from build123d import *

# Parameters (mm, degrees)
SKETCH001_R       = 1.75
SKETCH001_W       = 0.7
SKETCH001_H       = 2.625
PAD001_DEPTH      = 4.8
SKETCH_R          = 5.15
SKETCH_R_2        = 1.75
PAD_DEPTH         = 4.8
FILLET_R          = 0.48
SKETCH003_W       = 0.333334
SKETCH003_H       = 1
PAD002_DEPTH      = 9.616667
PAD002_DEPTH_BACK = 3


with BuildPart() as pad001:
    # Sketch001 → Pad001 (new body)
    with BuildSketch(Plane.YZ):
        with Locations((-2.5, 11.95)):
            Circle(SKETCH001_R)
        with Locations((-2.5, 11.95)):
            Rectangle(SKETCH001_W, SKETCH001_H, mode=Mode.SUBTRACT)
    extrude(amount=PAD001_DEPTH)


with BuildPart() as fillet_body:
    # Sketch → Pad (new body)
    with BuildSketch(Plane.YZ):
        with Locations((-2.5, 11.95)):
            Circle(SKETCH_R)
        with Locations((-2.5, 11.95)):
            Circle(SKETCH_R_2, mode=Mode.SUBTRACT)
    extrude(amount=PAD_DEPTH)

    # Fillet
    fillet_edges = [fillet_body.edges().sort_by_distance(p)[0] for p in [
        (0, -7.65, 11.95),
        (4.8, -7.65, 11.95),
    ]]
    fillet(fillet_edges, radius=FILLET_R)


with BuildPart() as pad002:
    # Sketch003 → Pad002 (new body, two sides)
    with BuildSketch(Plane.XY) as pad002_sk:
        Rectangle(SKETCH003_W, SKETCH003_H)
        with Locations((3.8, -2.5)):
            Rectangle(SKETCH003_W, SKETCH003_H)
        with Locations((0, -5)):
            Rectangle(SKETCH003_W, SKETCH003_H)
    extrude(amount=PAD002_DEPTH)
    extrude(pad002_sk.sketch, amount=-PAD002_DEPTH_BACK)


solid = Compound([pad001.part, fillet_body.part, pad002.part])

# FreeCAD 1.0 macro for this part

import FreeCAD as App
import Part
import Sketcher

V = App.Vector


def edges_at(feature, points):
    """Names of the edges that pass closest to the given points."""
    edges = feature.Shape.Edges
    near = lambda p: min(range(len(edges)), key=lambda i: edges[i].distToShape(Part.Vertex(*p))[0])
    return sorted({f"Edge{near(p) + 1}" for p in points})


def add_polygon(sketch, points):
    """Adds a closed chain of lines whose ends are joined by coincident constraints."""
    first, n = sketch.GeometryCount, len(points)
    for a, b in zip(points, points[1:] + points[:1]):
        sketch.addGeometry(Part.LineSegment(App.Vector(*a, 0), App.Vector(*b, 0)), False)
    for i in range(n):
        sketch.addConstraint(Sketcher.Constraint("Coincident", first + i, 2, first + (i + 1) % n, 1))

doc = App.newDocument("Part")
body = doc.addObject("PartDesign::Body", "Body")

# Sketch on YZ plane
sketch1 = body.newObject("Sketcher::SketchObject", "Sketch")
sketch1.AttachmentSupport = (doc.getObject("YZ_Plane"), [""])
sketch1.MapMode = "FlatFace"
sketch1.addGeometry(Part.Circle(V(-2.5, 11.9, 0), V(0, 0, 1), 1.8), False)  # 0
add_polygon(sketch1, [(-2.1, 10.6), (-2.9, 10.6), (-2.9, 13.3), (-2.1, 13.3)])  # lines 1-4
sketch1.addConstraint([
    Sketcher.Constraint("Horizontal", 1),
    Sketcher.Constraint("Vertical", 2),
    Sketcher.Constraint("Horizontal", 3),
    Sketcher.Constraint("Vertical", 4),
    Sketcher.Constraint("Diameter", 0, 3.5),
    Sketcher.Constraint("DistanceX", 1, 2, 1, 1, 0.7),
    Sketcher.Constraint("DistanceX", 0, 3, -1, 1, 2.5),
    Sketcher.Constraint("DistanceY", 2, 1, 2, 2, 2.625),
    Sketcher.Constraint("DistanceY", -1, 1, 0, 3, 11.95),
    Sketcher.Constraint("DistanceX", 1, 2, -1, 1, 2.85),
    Sketcher.Constraint("DistanceY", -1, 1, 1, 2, 10.6375),
])
pad1 = body.newObject("PartDesign::Pad", "Pad")
pad1.Profile = sketch1
pad1.Length = 4.8
body2 = doc.addObject("PartDesign::Body", "Body001")

# Sketch on YZ plane
sketch2 = body2.newObject("Sketcher::SketchObject", "Sketch001")
sketch2.AttachmentSupport = (doc.getObject("YZ_Plane001"), [""])
sketch2.MapMode = "FlatFace"
sketch2.addGeometry([
    Part.Circle(V(-2.5, 11.9, 0), V(0, 0, 1), 5.2),
    Part.Circle(V(-2.5, 11.9, 0), V(0, 0, 1), 1.8),
], False)
sketch2.addConstraint([
    Sketcher.Constraint("Coincident", 1, 3, 0, 3),
    Sketcher.Constraint("Diameter", 0, 10.3),
    Sketcher.Constraint("Diameter", 1, 3.5),
    Sketcher.Constraint("DistanceX", 0, 3, -1, 1, 2.5),
    Sketcher.Constraint("DistanceY", -1, 1, 0, 3, 11.95),
])
pad2 = body2.newObject("PartDesign::Pad", "Pad001")
pad2.Profile = sketch2
pad2.Length = 4.8
doc.recompute()

fillet = body2.newObject("PartDesign::Fillet", "Fillet")
fillet.Base = (pad2, edges_at(pad2, [(0, -7.65, 11.95), (4.8, -7.65, 11.95)]))
fillet.Radius = 0.48
body3 = doc.addObject("PartDesign::Body", "Body002")
body3.AllowCompound = True

# Sketch on XY plane
sketch3 = body3.newObject("Sketcher::SketchObject", "Sketch002")
sketch3.AttachmentSupport = (doc.getObject("XY_Plane002"), [""])
sketch3.MapMode = "FlatFace"
add_polygon(sketch3, [(-0.17, 0.5), (-0.17, -0.5), (0.17, -0.5), (0.17, 0.5)])  # lines 0-3
add_polygon(sketch3, [(3.63, -2), (3.63, -3), (3.97, -3), (3.97, -2)])  # lines 4-7
add_polygon(sketch3, [(-0.17, -4.5), (-0.17, -5.5), (0.17, -5.5), (0.17, -4.5)])  # lines 8-11
sketch3.addConstraint([
    Sketcher.Constraint("Vertical", 0),
    Sketcher.Constraint("Horizontal", 1),
    Sketcher.Constraint("Vertical", 2),
    Sketcher.Constraint("Horizontal", 3),
    Sketcher.Constraint("Vertical", 4),
    Sketcher.Constraint("Horizontal", 5),
    Sketcher.Constraint("Vertical", 6),
    Sketcher.Constraint("Horizontal", 7),
    Sketcher.Constraint("Vertical", 8),
    Sketcher.Constraint("Horizontal", 9),
    Sketcher.Constraint("Vertical", 10),
    Sketcher.Constraint("Horizontal", 11),
    Sketcher.Constraint("Symmetric", 0, 2, 2, 2, -1, 1),
    Sketcher.Constraint("Vertical", 3, 2, 8, 2),
    Sketcher.Constraint("Vertical", 2, 2, 9, 2),
    Sketcher.Constraint("Equal", 3, 5),
    Sketcher.Constraint("Equal", 2, 4),
    Sketcher.Constraint("Equal", 6, 8),
    Sketcher.Constraint("DistanceY", 0, 2, 0, 1, 1.0),
    Sketcher.Constraint("DistanceY", 4, 2, -1, 1, 3.0),
    Sketcher.Constraint("DistanceY", 8, 2, 0, 2, 5.0),
    Sketcher.Constraint("DistanceX", 0, 2, 4, 2, 3.8),
    Sketcher.Constraint("DistanceX", 1, 1, 1, 2, 0.333334),
])
pad3 = body3.newObject("PartDesign::Pad", "Pad002")
pad3.Profile = sketch3
pad3.Type = "TwoLengths"
pad3.Length = 9.616667
pad3.Length2 = 3

doc.recompute()
